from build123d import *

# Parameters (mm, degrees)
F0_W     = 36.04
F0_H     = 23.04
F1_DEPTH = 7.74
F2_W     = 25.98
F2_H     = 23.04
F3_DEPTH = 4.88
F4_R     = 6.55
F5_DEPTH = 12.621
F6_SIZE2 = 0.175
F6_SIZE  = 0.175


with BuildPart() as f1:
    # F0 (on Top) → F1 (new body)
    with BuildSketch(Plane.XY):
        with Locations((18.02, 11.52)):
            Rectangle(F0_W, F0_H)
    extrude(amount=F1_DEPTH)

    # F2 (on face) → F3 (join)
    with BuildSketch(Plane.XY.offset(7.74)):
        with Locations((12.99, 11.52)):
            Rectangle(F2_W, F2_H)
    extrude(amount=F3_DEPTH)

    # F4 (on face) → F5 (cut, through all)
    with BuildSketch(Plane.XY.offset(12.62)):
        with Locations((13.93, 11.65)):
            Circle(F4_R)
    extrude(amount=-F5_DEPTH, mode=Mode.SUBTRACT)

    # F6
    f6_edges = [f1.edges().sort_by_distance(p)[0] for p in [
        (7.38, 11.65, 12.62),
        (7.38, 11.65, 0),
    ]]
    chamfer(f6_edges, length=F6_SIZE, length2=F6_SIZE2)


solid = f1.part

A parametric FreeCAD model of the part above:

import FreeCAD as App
import Part
import Sketcher
Q = App.Units.Quantity


def edges_at(feature, points):
    """Names of the edges that pass closest to the given points."""
    edges = feature.Shape.Edges
    near = lambda p: min(range(len(edges)), key=lambda i: edges[i].distToShape(Part.Vertex(*p))[0])
    return sorted({f"Edge{near(p) + 1}" for p in points})


def add_polygon(sketch, points):
    """Adds a closed chain of lines whose ends are joined by coincident constraints."""
    first, n = sketch.GeometryCount, len(points)
    for a, b in zip(points, points[1:] + points[:1]):
        sketch.addGeometry(Part.LineSegment(App.Vector(*a, 0), App.Vector(*b, 0)), False)
    for i in range(n):
        sketch.addConstraint(Sketcher.Constraint("Coincident", first + i, 2, first + (i + 1) % n, 1))

doc = App.newDocument("Part")
body = doc.addObject("PartDesign::Body", "Body")

# Sketch on XY plane
sketch1 = body.newObject("Sketcher::SketchObject", "Sketch")
sketch1.AttachmentSupport = (doc.getObject("XY_Plane"), [""])
sketch1.MapMode = "FlatFace"
add_polygon(sketch1, [(0, 23.04), (0, 0), (36.04, 0), (36.04, 23.04)])  # lines 0-3
sketch1.addConstraint(Sketcher.Constraint("Vertical", 0))
sketch1.addConstraint(Sketcher.Constraint("Horizontal", 1))
sketch1.addConstraint(Sketcher.Constraint("Vertical", 2))
sketch1.addConstraint(Sketcher.Constraint("Horizontal", 3))
sketch1.addConstraint(Sketcher.Constraint("Coincident", 0, 2, -1, 1))
sketch1.addConstraint(Sketcher.Constraint("DistanceX", 1, 1, 1, 2, Q("36.04 mm")))
sketch1.addConstraint(Sketcher.Constraint("DistanceY", 0, 2, 0, 1, Q("23.04 mm")))
pad1 = body.newObject("PartDesign::Pad", "Pad")
pad1.Profile = sketch1
pad1.Length = 7.74

# Sketch on XY plane
sketch2 = body.newObject("Sketcher::SketchObject", "Sketch001")
sketch2.AttachmentSupport = (doc.getObject("XY_Plane"), [""])
sketch2.MapMode = "FlatFace"
sketch2.AttachmentOffset = App.Placement(App.Vector(0, 0, 7.74), App.Rotation())
add_polygon(sketch2, [(0, 23.04), (0, 0), (25.98, 0), (25.98, 23.04)])  # lines 0-3
sketch2.addConstraint(Sketcher.Constraint("Vertical", 0))
sketch2.addConstraint(Sketcher.Constraint("Horizontal", 1))
sketch2.addConstraint(Sketcher.Constraint("Vertical", 2))
sketch2.addConstraint(Sketcher.Constraint("Horizontal", 3))
sketch2.addConstraint(Sketcher.Constraint("Coincident", 0, 2, -1, 1))
sketch2.addConstraint(Sketcher.Constraint("DistanceX", 1, 1, 1, 2, Q("25.98 mm")))
sketch2.addConstraint(Sketcher.Constraint("DistanceY", 0, 2, 0, 1, Q("23.04 mm")))
pad2 = body.newObject("PartDesign::Pad", "Pad001")
pad2.Profile = sketch2
pad2.Length = 4.88

# Sketch on XY plane
sketch3 = body.newObject("Sketcher::SketchObject", "Sketch002")
sketch3.AttachmentSupport = (doc.getObject("XY_Plane"), [""])
sketch3.MapMode = "FlatFace"
sketch3.AttachmentOffset = App.Placement(App.Vector(0, 0, 12.62), App.Rotation())
sketch3.addGeometry(Part.Circle(App.Vector(13.93, 11.65, 0), App.Vector(0, 0, 1), 6.55), False)
sketch3.addConstraint(Sketcher.Constraint("Diameter", 0, Q("13.1 mm")))
sketch3.addConstraint(Sketcher.Constraint("DistanceX", -1, 1, 0, 3, Q("13.93 mm")))
sketch3.addConstraint(Sketcher.Constraint("DistanceY", -1, 1, 0, 3, Q("11.65 mm")))
pocket1 = body.newObject("PartDesign::Pocket", "Pocket")
pocket1.Profile = sketch3
pocket1.Type = "ThroughAll"
doc.recompute()

chamfer = body.newObject("PartDesign::Chamfer", "Chamfer")
chamfer.Base = (pocket1, edges_at(pocket1, [(7.38, 11.65, 12.62), (7.38, 11.65, 0)]))
chamfer.ChamferType = "Two distances"
chamfer.Size = 0.175
chamfer.Size2 = 0.175

doc.recompute()
